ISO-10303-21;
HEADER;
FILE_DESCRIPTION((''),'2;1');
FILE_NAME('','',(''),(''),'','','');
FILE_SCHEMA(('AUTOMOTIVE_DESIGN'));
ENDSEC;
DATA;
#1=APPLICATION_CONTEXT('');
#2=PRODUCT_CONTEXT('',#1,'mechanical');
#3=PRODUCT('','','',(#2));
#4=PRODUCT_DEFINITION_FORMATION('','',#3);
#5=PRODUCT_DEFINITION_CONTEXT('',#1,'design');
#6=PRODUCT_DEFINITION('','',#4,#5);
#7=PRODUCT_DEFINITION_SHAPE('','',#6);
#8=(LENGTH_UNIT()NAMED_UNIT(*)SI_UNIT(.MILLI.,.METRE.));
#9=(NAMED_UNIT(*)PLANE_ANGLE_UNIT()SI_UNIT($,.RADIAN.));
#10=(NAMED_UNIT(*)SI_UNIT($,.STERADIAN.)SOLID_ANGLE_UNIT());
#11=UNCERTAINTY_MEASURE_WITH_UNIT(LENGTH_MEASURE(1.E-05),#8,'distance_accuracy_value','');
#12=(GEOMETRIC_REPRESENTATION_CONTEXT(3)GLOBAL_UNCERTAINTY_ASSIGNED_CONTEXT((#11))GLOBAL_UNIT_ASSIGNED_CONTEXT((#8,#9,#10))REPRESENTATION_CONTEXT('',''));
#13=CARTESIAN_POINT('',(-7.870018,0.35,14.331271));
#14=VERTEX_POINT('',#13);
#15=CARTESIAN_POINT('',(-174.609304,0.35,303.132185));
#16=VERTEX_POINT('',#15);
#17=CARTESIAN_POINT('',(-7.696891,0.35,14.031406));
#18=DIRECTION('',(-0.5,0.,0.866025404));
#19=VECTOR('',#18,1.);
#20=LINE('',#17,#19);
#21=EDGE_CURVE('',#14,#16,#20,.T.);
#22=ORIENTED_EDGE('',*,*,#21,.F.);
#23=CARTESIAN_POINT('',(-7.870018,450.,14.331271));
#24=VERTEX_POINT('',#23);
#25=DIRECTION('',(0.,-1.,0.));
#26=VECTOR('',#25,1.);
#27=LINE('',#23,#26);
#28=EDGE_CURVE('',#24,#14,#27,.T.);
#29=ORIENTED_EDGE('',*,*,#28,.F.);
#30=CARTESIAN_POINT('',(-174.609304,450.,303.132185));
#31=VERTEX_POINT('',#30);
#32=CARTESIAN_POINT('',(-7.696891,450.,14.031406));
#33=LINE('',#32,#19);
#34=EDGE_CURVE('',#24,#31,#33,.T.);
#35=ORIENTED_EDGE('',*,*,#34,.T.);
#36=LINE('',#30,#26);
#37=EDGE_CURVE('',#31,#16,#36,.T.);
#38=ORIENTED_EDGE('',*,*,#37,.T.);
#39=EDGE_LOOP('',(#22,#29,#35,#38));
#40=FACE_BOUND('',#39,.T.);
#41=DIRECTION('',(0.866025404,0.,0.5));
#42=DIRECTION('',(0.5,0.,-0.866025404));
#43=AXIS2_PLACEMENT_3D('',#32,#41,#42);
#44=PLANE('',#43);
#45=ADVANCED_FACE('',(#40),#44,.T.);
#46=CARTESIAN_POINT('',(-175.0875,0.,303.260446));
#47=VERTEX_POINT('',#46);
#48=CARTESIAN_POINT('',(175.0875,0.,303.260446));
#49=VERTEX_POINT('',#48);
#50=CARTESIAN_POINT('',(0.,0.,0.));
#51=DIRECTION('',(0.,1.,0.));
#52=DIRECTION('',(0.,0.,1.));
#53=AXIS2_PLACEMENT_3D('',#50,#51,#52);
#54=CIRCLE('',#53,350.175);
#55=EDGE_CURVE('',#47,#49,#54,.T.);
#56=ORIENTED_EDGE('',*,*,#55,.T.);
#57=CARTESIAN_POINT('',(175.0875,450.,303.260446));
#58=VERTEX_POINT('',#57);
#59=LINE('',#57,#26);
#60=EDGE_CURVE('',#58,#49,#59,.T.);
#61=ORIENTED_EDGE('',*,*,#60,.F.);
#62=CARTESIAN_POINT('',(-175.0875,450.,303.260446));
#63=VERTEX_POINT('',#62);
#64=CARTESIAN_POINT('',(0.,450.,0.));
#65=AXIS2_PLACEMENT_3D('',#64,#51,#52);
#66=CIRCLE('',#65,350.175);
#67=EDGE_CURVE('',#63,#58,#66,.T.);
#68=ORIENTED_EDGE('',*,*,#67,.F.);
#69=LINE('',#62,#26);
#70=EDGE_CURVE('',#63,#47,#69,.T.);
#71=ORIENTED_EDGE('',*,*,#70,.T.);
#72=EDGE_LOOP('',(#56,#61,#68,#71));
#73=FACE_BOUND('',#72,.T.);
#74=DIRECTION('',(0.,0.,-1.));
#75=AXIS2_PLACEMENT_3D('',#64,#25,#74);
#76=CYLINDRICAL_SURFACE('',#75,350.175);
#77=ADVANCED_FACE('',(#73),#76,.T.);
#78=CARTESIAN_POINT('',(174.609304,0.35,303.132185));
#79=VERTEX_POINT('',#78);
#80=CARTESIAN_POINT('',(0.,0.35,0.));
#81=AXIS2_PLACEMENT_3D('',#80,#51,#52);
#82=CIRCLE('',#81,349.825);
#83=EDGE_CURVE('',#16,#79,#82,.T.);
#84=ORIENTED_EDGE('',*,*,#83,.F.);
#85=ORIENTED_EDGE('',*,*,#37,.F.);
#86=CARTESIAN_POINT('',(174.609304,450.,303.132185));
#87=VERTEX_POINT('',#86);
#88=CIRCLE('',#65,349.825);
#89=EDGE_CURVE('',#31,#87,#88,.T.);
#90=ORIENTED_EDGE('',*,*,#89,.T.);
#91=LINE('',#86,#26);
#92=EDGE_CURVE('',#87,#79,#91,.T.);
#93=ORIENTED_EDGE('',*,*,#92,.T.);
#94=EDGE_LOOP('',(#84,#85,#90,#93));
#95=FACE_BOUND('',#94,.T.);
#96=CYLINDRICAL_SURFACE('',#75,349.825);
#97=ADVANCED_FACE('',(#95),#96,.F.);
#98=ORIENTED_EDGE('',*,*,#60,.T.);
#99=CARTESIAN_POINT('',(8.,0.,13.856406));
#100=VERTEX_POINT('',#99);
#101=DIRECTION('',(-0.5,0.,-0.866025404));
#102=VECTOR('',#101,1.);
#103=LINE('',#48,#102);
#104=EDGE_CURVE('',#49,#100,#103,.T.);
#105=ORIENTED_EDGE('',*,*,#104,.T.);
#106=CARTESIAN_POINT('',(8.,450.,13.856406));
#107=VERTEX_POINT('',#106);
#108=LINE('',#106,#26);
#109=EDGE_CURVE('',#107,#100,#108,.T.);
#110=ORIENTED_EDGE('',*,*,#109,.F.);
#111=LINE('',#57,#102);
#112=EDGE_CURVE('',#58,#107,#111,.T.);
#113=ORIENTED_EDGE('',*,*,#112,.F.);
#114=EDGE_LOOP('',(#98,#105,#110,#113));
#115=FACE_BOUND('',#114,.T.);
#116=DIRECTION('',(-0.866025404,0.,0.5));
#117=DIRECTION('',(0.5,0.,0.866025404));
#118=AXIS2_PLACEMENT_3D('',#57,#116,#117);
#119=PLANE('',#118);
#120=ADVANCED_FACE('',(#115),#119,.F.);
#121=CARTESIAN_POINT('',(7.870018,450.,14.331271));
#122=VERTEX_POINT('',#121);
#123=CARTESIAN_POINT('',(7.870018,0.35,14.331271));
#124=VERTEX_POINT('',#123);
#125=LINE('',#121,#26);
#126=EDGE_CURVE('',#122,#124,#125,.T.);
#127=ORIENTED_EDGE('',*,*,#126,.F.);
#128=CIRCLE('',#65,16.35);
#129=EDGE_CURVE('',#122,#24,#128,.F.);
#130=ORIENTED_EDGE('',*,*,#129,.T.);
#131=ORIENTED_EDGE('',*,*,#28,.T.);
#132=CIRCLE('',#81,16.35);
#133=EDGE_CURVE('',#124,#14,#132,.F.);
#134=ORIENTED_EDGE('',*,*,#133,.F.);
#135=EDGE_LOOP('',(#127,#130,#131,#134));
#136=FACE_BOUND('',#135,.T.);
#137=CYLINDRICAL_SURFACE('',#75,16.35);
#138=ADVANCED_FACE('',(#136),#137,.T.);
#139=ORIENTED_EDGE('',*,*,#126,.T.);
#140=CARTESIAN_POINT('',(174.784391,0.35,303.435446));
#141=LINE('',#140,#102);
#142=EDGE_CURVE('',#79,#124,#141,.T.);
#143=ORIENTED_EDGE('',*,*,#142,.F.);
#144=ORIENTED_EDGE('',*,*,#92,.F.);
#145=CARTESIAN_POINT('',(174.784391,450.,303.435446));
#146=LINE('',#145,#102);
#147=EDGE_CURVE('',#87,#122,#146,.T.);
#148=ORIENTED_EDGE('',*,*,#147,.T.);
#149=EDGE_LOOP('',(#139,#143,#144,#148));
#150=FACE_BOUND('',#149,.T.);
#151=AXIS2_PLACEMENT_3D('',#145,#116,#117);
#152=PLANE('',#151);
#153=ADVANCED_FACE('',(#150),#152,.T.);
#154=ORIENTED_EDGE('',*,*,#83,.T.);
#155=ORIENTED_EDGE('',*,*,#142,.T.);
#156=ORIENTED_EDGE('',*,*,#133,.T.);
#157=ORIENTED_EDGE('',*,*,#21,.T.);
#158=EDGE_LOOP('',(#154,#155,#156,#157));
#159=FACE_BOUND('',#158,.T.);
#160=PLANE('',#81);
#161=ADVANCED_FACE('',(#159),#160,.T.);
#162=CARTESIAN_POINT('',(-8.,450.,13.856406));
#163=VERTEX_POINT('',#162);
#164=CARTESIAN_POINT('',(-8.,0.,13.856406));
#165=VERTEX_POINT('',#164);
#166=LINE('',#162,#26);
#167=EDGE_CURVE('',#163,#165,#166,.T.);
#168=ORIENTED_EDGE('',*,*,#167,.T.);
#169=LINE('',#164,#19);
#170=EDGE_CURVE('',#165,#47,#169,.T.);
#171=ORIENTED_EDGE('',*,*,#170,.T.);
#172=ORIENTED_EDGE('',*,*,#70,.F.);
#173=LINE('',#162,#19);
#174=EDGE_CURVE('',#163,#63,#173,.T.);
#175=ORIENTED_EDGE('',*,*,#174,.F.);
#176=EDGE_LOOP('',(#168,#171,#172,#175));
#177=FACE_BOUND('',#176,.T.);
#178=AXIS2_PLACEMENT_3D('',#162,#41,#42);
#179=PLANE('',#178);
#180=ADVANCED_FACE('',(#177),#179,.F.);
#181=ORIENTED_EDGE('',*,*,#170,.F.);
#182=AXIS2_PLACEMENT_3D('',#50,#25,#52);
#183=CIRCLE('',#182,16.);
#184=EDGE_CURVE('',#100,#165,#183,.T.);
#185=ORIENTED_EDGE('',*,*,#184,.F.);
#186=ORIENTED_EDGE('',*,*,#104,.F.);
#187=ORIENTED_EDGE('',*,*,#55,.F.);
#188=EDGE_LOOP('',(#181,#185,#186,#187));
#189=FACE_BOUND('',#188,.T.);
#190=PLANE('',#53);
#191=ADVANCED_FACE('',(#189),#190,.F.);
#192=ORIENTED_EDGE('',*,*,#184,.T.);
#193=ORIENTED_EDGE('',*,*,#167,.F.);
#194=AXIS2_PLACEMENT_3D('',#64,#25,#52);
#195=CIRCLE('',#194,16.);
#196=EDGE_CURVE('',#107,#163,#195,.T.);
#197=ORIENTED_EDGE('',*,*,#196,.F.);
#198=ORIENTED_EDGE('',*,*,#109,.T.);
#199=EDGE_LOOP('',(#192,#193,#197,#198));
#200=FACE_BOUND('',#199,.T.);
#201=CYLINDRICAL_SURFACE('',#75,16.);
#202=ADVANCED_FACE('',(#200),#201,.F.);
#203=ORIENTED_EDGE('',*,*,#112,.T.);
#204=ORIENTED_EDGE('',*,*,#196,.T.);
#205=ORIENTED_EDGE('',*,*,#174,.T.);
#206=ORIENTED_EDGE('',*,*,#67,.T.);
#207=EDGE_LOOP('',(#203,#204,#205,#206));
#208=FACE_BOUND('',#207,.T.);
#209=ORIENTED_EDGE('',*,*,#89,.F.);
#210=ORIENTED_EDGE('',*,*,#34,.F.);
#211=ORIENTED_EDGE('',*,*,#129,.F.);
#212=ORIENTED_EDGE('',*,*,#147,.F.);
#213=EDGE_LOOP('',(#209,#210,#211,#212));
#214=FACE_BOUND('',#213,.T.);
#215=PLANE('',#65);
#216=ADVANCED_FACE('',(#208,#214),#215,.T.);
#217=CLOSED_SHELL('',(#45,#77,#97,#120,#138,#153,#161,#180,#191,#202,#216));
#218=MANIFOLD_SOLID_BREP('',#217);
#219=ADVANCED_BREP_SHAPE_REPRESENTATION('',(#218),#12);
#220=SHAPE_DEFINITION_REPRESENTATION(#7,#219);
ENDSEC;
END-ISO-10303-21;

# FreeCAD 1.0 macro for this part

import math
import FreeCAD as App
import Part
import Sketcher
from FreeCAD import Vector
Q = App.Units.Quantity


def faces_at(feature, points):
    """Names of the faces that lie closest to the given points."""
    faces = feature.Shape.Faces
    near = lambda p: min(range(len(faces)), key=lambda i: faces[i].distToShape(Part.Vertex(*p))[0])
    return sorted({f"Face{near(p) + 1}" for p in points})

doc = App.newDocument("Part")
body = doc.addObject("PartDesign::Body", "Body")

# Sketch on XZ plane
sketch1 = body.newObject("Sketcher::SketchObject", "Sketch")
sketch1.AttachmentSupport = (doc.getObject("XZ_Plane"), [""])
sketch1.MapMode = "FlatFace"
sketch1.addGeometry([
    Part.LineSegment(Vector(-8, 13.856406, 0), Vector(-175.0875, 303.260446, 0)),
    Part.ArcOfCircle(Part.Circle(Vector(0, 0, 0), Vector(0, 0, 1), 350.175), math.radians(60), math.radians(120)),
    Part.LineSegment(Vector(175.0875, 303.260446, 0), Vector(8, 13.856406, 0)),
    Part.ArcOfCircle(Part.Circle(Vector(0, 0, 0), Vector(0, 0, 1), 16), math.radians(60), math.radians(120)),
], False)
sketch1.addConstraint([
    Sketcher.Constraint("Coincident", 0, 2, 1, 2),
    Sketcher.Constraint("Coincident", 1, 1, 2, 1),
    Sketcher.Constraint("Coincident", 2, 2, 3, 1),
    Sketcher.Constraint("Coincident", 3, 2, 0, 1),
    Sketcher.Constraint("Coincident", 1, 3, -1, 1),
    Sketcher.Constraint("Coincident", 3, 3, -1, 1),
    Sketcher.Constraint("Horizontal", 0, 2, 1, 1),
    Sketcher.Constraint("Horizontal", 2, 2, 3, 2),
    Sketcher.Constraint("Radius", 3, 16.0),
    Sketcher.Constraint("Angle", 0, Q("120 deg")),
    Sketcher.Constraint("DistanceX", -1, 1, 2, 2, 8.0),
    Sketcher.Constraint("Radius", 1, 350.175),
])
pad1 = body.newObject("PartDesign::Pad", "Pad")
pad1.Profile = sketch1
pad1.Length = 450
pad1.Reversed = True
doc.recompute()

thickness = body.newObject("PartDesign::Thickness", "Thickness")
thickness.Base = (pad1, faces_at(pad1, [(0, 450, 182.016)]))
thickness.Value = 0.35
thickness.Reversed = True
thickness.Join = "Intersection"

doc.recompute()
